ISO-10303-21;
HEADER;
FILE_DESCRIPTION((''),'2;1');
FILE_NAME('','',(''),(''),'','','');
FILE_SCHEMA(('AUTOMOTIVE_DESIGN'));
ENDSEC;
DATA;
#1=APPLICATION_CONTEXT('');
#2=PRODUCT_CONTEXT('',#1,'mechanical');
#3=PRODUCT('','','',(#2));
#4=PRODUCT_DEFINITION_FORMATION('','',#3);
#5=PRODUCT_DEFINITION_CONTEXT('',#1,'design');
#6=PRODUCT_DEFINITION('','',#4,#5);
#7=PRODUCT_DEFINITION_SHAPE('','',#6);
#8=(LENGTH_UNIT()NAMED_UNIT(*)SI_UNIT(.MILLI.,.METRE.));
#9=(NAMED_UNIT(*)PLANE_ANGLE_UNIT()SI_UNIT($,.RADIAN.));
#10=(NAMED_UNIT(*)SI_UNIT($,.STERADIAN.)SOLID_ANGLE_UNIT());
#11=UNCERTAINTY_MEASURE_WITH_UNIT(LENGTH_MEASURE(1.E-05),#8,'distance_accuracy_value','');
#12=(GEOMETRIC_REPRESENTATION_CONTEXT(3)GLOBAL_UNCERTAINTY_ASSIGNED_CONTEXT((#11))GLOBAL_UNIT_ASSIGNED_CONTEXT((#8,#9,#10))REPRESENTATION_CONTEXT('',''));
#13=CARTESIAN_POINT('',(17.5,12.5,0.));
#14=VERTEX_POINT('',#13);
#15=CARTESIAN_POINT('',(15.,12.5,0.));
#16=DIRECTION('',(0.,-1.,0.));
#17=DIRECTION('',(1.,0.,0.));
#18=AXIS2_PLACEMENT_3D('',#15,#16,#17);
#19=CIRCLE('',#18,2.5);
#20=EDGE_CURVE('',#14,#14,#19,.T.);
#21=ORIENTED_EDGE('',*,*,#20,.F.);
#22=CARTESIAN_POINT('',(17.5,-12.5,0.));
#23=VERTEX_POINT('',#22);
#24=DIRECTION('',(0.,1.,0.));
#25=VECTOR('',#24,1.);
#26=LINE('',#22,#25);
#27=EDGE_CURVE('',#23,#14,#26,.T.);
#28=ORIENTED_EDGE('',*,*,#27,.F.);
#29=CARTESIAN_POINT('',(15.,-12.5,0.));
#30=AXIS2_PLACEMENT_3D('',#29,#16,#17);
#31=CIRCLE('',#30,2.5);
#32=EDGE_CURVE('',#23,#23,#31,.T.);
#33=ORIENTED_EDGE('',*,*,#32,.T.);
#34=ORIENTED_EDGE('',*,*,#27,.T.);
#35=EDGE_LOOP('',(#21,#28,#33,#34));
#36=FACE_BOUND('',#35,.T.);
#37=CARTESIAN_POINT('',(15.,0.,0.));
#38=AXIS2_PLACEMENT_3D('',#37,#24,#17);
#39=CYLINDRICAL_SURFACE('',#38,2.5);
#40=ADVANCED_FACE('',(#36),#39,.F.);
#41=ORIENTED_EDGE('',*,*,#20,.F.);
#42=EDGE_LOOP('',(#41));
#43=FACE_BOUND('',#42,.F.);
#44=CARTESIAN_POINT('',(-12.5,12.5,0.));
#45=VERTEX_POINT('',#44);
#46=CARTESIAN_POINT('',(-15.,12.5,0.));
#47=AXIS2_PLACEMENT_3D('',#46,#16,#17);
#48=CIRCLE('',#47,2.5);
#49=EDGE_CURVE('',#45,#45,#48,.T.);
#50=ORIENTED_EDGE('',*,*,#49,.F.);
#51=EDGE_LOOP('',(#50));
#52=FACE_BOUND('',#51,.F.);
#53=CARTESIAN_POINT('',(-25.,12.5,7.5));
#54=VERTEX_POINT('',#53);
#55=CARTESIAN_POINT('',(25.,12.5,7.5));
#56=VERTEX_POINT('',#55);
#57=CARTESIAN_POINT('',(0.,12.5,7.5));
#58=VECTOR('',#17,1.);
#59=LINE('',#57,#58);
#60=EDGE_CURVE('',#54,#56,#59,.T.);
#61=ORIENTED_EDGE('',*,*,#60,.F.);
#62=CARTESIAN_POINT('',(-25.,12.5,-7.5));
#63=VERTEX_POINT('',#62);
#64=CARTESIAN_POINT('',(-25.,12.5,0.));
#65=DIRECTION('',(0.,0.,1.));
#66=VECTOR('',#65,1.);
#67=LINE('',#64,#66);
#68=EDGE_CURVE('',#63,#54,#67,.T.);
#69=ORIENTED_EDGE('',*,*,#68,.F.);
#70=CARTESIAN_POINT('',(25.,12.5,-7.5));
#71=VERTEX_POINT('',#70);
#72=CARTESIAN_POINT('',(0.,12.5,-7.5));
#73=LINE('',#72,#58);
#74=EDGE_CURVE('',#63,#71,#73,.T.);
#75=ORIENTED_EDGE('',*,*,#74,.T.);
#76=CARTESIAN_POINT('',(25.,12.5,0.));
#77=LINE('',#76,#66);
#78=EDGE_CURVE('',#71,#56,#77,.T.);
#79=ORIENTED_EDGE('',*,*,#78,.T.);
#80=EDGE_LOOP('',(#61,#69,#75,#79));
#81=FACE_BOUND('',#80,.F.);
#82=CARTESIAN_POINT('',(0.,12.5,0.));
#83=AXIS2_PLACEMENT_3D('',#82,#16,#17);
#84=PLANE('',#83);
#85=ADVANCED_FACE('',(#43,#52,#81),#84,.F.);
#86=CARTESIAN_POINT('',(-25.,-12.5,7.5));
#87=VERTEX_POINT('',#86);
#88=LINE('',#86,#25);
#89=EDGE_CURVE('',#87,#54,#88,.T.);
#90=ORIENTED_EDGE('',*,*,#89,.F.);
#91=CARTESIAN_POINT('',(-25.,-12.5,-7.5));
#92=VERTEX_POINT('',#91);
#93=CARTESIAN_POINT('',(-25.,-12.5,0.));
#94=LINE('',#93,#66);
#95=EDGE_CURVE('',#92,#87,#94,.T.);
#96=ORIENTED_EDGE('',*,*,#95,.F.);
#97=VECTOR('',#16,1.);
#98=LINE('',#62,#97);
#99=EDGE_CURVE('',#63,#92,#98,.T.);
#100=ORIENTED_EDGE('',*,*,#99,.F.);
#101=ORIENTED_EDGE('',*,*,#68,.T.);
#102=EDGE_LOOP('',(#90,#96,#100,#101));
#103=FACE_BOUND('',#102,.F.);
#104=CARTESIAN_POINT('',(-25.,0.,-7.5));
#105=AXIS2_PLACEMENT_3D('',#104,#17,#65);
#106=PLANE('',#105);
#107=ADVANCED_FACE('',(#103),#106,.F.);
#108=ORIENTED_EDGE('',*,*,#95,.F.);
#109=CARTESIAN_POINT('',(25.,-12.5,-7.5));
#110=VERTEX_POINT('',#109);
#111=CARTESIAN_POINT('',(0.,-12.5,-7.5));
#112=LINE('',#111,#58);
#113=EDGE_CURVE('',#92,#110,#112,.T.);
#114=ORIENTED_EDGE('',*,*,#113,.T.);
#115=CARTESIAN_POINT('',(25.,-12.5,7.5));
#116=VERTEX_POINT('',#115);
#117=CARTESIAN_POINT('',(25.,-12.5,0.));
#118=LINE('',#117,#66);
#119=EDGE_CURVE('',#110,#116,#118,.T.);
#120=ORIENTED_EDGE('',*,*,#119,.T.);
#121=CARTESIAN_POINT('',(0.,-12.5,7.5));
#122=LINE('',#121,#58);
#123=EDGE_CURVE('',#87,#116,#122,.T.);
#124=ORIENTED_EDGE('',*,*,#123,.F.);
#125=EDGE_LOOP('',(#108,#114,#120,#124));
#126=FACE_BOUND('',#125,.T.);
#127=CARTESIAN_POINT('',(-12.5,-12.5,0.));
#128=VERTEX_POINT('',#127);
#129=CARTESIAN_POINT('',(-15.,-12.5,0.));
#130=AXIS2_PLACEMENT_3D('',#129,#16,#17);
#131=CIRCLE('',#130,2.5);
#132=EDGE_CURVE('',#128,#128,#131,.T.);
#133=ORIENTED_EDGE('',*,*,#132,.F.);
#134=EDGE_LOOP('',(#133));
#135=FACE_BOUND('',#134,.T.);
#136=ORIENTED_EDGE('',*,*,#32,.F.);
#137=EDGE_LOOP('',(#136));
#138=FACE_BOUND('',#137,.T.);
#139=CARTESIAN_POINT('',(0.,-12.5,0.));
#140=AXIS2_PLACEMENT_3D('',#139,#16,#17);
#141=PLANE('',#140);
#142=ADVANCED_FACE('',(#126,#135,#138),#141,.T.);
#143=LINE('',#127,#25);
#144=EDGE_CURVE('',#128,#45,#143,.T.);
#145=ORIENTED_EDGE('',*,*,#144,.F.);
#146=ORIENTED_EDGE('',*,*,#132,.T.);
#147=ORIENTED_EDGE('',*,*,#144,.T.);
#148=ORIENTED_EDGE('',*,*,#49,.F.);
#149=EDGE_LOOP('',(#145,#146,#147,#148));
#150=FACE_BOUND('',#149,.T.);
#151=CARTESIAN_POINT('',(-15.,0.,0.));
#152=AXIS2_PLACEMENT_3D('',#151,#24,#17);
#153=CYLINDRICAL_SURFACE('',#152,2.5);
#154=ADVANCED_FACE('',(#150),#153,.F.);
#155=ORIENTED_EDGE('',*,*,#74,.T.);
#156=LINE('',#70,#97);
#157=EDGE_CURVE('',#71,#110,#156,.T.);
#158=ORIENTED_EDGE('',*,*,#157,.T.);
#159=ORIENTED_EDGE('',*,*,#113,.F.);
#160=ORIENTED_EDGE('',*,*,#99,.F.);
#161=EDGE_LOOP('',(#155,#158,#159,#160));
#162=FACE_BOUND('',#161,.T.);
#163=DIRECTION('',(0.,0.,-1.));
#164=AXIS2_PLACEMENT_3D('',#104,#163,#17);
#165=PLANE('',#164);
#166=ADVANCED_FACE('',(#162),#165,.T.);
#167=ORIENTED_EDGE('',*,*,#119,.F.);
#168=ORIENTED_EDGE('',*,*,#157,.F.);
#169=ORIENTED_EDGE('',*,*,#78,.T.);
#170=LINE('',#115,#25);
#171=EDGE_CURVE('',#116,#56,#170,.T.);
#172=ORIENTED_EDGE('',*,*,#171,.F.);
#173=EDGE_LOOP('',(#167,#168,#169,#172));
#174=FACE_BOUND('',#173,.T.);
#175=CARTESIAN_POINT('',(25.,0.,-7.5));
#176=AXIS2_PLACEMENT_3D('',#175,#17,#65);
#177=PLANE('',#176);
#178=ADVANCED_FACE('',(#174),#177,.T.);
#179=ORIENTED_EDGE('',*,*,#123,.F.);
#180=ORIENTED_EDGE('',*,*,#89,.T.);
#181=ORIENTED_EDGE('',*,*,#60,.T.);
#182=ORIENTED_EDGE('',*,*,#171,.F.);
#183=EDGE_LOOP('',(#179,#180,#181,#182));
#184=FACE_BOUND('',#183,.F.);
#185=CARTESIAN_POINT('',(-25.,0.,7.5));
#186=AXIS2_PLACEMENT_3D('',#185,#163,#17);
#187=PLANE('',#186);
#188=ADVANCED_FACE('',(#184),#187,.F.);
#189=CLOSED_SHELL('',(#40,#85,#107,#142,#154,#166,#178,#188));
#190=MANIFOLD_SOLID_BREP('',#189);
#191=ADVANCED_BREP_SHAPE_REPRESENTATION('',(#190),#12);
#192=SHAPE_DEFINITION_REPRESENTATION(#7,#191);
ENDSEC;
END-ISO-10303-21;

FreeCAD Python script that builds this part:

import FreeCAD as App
import Part
import Sketcher
Q = App.Units.Quantity


def add_polygon(sketch, points):
    """Adds a closed chain of lines whose ends are joined by coincident constraints."""
    first, n = sketch.GeometryCount, len(points)
    for a, b in zip(points, points[1:] + points[:1]):
        sketch.addGeometry(Part.LineSegment(App.Vector(*a, 0), App.Vector(*b, 0)), False)
    for i in range(n):
        sketch.addConstraint(Sketcher.Constraint("Coincident", first + i, 2, first + (i + 1) % n, 1))

doc = App.newDocument("Part")
body = doc.addObject("PartDesign::Body", "Body")

sketch1 = doc.addObject("Sketcher::SketchObject", "Sketch")
body.addObject(sketch1)
sketch1.AttachmentSupport = (doc.XZ_Plane, [""])
sketch1.MapMode = "FlatFace"
add_polygon(sketch1, [(-25, 7.5), (-25, -7.5), (25, -7.5), (25, 7.5)])
sketch1.addGeometry(Part.Circle(App.Vector(-15, 0, 0), App.Vector(0, 0, 1), 2.5), False)
sketch1.addGeometry(Part.Circle(App.Vector(15, 0, 0), App.Vector(0, 0, 1), 2.5), False)
sketch1.addConstraint([
    Sketcher.Constraint("Vertical", 0),
    Sketcher.Constraint("Horizontal", 1),
    Sketcher.Constraint("Vertical", 2),
    Sketcher.Constraint("Horizontal", 3),
    Sketcher.Constraint("Equal", 4, 5),
    Sketcher.Constraint("Symmetric", 4, 3, 5, 3, -1, 1),
    Sketcher.Constraint("Symmetric", 0, 2, 2, 2, -1, 1),
    Sketcher.Constraint("PointOnObject", 4, 3, -1),
    Sketcher.Constraint("Diameter", 4, Q("5 mm")),
    Sketcher.Constraint("DistanceX", 1, 1, 1, 2, Q("50 mm")),
    Sketcher.Constraint("DistanceY", 0, 2, 0, 1, Q("15 mm")),
    Sketcher.Constraint("DistanceX", 4, 3, -1, 1, Q("15 mm")),
])
pad1 = doc.addObject("PartDesign::Pad", "Pad")
body.addObject(pad1)
pad1.Profile = sketch1
pad1.Length = 25
pad1.Midplane = True

doc.recompute()
